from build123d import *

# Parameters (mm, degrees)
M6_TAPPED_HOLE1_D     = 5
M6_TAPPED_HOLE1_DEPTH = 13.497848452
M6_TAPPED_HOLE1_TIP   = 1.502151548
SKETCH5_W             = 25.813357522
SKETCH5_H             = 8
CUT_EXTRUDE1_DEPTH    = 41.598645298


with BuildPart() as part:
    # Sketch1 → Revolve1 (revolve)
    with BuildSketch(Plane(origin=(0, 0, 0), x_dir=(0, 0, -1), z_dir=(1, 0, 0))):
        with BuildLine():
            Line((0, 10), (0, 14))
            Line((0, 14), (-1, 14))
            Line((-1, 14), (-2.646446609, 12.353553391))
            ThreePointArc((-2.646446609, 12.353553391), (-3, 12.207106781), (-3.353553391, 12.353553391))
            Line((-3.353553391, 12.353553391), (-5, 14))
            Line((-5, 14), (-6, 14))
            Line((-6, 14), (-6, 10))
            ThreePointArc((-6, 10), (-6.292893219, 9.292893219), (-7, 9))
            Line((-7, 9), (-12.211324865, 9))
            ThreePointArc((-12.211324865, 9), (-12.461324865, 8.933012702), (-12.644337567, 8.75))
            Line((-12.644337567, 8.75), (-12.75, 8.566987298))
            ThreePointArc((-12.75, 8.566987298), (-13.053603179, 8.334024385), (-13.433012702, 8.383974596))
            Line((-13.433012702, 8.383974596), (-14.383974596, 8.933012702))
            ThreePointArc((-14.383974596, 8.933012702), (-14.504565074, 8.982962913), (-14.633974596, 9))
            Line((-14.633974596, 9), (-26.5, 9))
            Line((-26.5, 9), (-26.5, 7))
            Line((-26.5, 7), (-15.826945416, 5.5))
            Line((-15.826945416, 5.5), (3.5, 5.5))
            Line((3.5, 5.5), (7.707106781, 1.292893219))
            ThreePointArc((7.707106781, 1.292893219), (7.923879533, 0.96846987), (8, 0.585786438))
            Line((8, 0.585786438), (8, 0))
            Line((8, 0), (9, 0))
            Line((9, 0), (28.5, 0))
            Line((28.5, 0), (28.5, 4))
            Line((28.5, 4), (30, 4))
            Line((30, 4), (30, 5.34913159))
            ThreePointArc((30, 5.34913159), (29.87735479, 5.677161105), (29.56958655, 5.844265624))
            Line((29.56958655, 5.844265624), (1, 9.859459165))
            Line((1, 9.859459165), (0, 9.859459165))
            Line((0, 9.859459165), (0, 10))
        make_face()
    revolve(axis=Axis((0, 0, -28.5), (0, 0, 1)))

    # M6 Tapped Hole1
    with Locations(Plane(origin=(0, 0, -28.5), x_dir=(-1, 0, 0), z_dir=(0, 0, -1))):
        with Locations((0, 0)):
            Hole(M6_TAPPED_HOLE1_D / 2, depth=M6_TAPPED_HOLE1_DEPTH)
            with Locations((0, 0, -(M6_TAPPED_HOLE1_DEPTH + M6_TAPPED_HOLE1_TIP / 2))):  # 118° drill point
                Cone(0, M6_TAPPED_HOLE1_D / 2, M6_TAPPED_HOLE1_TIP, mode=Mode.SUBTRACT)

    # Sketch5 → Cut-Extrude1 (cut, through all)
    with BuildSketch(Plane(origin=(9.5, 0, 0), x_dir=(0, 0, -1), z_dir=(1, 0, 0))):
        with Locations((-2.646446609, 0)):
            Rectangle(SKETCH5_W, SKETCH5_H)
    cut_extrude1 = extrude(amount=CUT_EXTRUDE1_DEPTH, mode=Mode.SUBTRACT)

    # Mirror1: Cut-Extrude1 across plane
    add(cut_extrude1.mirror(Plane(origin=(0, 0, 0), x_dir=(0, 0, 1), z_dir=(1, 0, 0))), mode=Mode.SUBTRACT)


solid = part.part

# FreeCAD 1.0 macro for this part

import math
import FreeCAD as App
import Part
import Sketcher

V = App.Vector
Q = App.Units.Quantity


def add_polygon(sketch, points):
    """Adds a closed chain of lines whose ends are joined by coincident constraints."""
    first, n = sketch.GeometryCount, len(points)
    for a, b in zip(points, points[1:] + points[:1]):
        sketch.addGeometry(Part.LineSegment(App.Vector(*a, 0), App.Vector(*b, 0)), False)
    for i in range(n):
        sketch.addConstraint(Sketcher.Constraint("Coincident", first + i, 2, first + (i + 1) % n, 1))

doc = App.newDocument("Part")
params = doc.addObject("Spreadsheet::Sheet", "Params")
for row, (alias, value) in enumerate([
    ("sketch1_radius", "1 mm"),
    ("sketch1_radius2", "0.5 mm"),
    ("sketch1_width", "4 mm"),
    ("sketch1_width2", "2 mm"),
    ("sketch1_height", "1 mm"),
    ("revolution_angle", "360 deg"),
    ("sketch2_diameter", "5 mm"),
    ("hole_diameter", "5 mm"),
    ("hole_depth", "13.497848 mm"),
    ("sketch3_width", "8 mm"),
], start=1):
    params.set(f"A{row}", alias)
    params.set(f"B{row}", "=" + value)
    params.setAlias(f"B{row}", alias)

body = doc.addObject("PartDesign::Body", "Body")

# Sketch on YZ plane
sketch1 = body.newObject("Sketcher::SketchObject", "Sketch")
sketch1.AttachmentSupport = (doc.getObject("YZ_Plane"), [""])
sketch1.MapMode = "FlatFace"
sketch1.addGeometry(Part.LineSegment(V(14, 0, 0), V(14, 1, 0)), False)
sketch1.addGeometry(Part.LineSegment(V(14, 1, 0), V(12.35, 2.65, 0)), False)
sketch1.addGeometry(Part.ArcOfCircle(Part.Circle(V(12.71, 3, 0), V(0, 0, 1), 0.5), math.radians(135), math.radians(225)), False)
sketch1.addGeometry(Part.LineSegment(V(12.35, 3.35, 0), V(14, 5, 0)), False)
sketch1.addGeometry(Part.LineSegment(V(14, 5, 0), V(14, 6, 0)), False)
sketch1.addGeometry(Part.LineSegment(V(14, 6, 0), V(10, 6, 0)), False)
sketch1.addGeometry(Part.ArcOfCircle(Part.Circle(V(10, 7, 0), V(0, 0, 1), 1), math.radians(-180), math.radians(-90)), False)
sketch1.addGeometry(Part.LineSegment(V(9, 7, 0), V(9, 12.21, 0)), False)
sketch1.addGeometry(Part.ArcOfCircle(Part.Circle(V(8.5, 12.21, 0), V(0, 0, 1), 0.5), math.radians(0), math.radians(60)), False)
sketch1.addGeometry(Part.LineSegment(V(8.75, 12.64, 0), V(8.57, 12.75, 0)), False)
sketch1.addGeometry(Part.ArcOfCircle(Part.Circle(V(8.82, 13.18, 0), V(0, 0, 1), 0.5), math.radians(150), math.radians(240)), False)
sketch1.addGeometry(Part.LineSegment(V(8.38, 13.43, 0), V(8.93, 14.38, 0)), False)
sketch1.addGeometry(Part.ArcOfCircle(Part.Circle(V(8.5, 14.63, 0), V(0, 0, 1), 0.5), math.radians(-30), math.radians(0)), False)
sketch1.addGeometry(Part.LineSegment(V(9, 14.63, 0), V(9, 26.5, 0)), False)
sketch1.addGeometry(Part.LineSegment(V(9, 26.5, 0), V(7, 26.5, 0)), False)
sketch1.addGeometry(Part.LineSegment(V(7, 26.5, 0), V(5.5, 15.83, 0)), False)
sketch1.addGeometry(Part.LineSegment(V(5.5, 15.83, 0), V(5.5, -3.5, 0)), False)
sketch1.addGeometry(Part.LineSegment(V(5.5, -3.5, 0), V(1.29, -7.71, 0)), False)
sketch1.addGeometry(Part.ArcOfCircle(Part.Circle(V(0.59, -7, 0), V(0, 0, 1), 1), math.radians(-90), math.radians(-45)), False)
sketch1.addGeometry(Part.LineSegment(V(0.59, -8, 0), V(0, -8, 0)), False)
sketch1.addGeometry(Part.LineSegment(V(0, -8, 0), V(0, -28.5, 0)), False)
sketch1.addGeometry(Part.LineSegment(V(0, -28.5, 0), V(4, -28.5, 0)), False)
sketch1.addGeometry(Part.LineSegment(V(4, -28.5, 0), V(4, -30, 0)), False)
sketch1.addGeometry(Part.LineSegment(V(4, -30, 0), V(5.35, -30, 0)), False)
sketch1.addGeometry(Part.ArcOfCircle(Part.Circle(V(5.35, -29.5, 0), V(0, 0, 1), 0.5), math.radians(-90), math.radians(-8)), False)
sketch1.addGeometry(Part.LineSegment(V(5.84, -29.57, 0), V(9.86, -1, 0)), False)
sketch1.addGeometry(Part.LineSegment(V(9.86, -1, 0), V(9.86, 0, 0)), False)
sketch1.addGeometry(Part.LineSegment(V(9.86, 0, 0), V(14, 0, 0)), False)
sketch1.addConstraint(Sketcher.Constraint("Coincident", 0, 2, 1, 1))
sketch1.addConstraint(Sketcher.Constraint("Tangent", 1, 2, 2, 2))
sketch1.addConstraint(Sketcher.Constraint("Tangent", 2, 1, 3, 1))
sketch1.addConstraint(Sketcher.Constraint("Coincident", 3, 2, 4, 1))
sketch1.addConstraint(Sketcher.Constraint("Coincident", 4, 2, 5, 1))
sketch1.addConstraint(Sketcher.Constraint("Tangent", 5, 2, 6, 2))
sketch1.addConstraint(Sketcher.Constraint("Tangent", 6, 1, 7, 1))
sketch1.addConstraint(Sketcher.Constraint("Tangent", 7, 2, 8, 1))
sketch1.addConstraint(Sketcher.Constraint("Tangent", 8, 2, 9, 1))
sketch1.addConstraint(Sketcher.Constraint("Tangent", 9, 2, 10, 2))
sketch1.addConstraint(Sketcher.Constraint("Tangent", 10, 1, 11, 1))
sketch1.addConstraint(Sketcher.Constraint("Tangent", 11, 2, 12, 1))
sketch1.addConstraint(Sketcher.Constraint("Tangent", 12, 2, 13, 1))
sketch1.addConstraint(Sketcher.Constraint("Coincident", 13, 2, 14, 1))
sketch1.addConstraint(Sketcher.Constraint("Coincident", 14, 2, 15, 1))
sketch1.addConstraint(Sketcher.Constraint("Coincident", 15, 2, 16, 1))
sketch1.addConstraint(Sketcher.Constraint("Coincident", 16, 2, 17, 1))
sketch1.addConstraint(Sketcher.Constraint("Tangent", 17, 2, 18, 2))
sketch1.addConstraint(Sketcher.Constraint("Tangent", 18, 1, 19, 1))
sketch1.addConstraint(Sketcher.Constraint("Coincident", 19, 2, 20, 1))
sketch1.addConstraint(Sketcher.Constraint("Coincident", 20, 2, 21, 1))
sketch1.addConstraint(Sketcher.Constraint("Coincident", 21, 2, 22, 1))
sketch1.addConstraint(Sketcher.Constraint("Coincident", 22, 2, 23, 1))
sketch1.addConstraint(Sketcher.Constraint("Tangent", 23, 2, 24, 1))
sketch1.addConstraint(Sketcher.Constraint("Tangent", 24, 2, 25, 1))
sketch1.addConstraint(Sketcher.Constraint("Coincident", 25, 2, 26, 1))
sketch1.addConstraint(Sketcher.Constraint("Coincident", 26, 2, 27, 1))
sketch1.addConstraint(Sketcher.Constraint("Coincident", 27, 2, 0, 1))
sketch1.addConstraint(Sketcher.Constraint("Vertical", 0))
sketch1.addConstraint(Sketcher.Constraint("Vertical", 4))
sketch1.addConstraint(Sketcher.Constraint("Horizontal", 5))
sketch1.addConstraint(Sketcher.Constraint("Vertical", 7))
sketch1.addConstraint(Sketcher.Constraint("Vertical", 13))
sketch1.addConstraint(Sketcher.Constraint("Horizontal", 14))
sketch1.addConstraint(Sketcher.Constraint("Vertical", 16))
sketch1.addConstraint(Sketcher.Constraint("Horizontal", 19))
sketch1.addConstraint(Sketcher.Constraint("Vertical", 20))
sketch1.addConstraint(Sketcher.Constraint("Horizontal", 21))
sketch1.addConstraint(Sketcher.Constraint("Vertical", 22))
sketch1.addConstraint(Sketcher.Constraint("Horizontal", 23))
sketch1.addConstraint(Sketcher.Constraint("Vertical", 26))
sketch1.addConstraint(Sketcher.Constraint("Horizontal", 27))
sketch1.addConstraint(Sketcher.Constraint("Equal", 2, 8))
sketch1.addConstraint(Sketcher.Constraint("Equal", 8, 10))
sketch1.addConstraint(Sketcher.Constraint("Equal", 10, 12))
sketch1.addConstraint(Sketcher.Constraint("Equal", 6, 18))
sketch1.addConstraint(Sketcher.Constraint("Equal", 12, 24))
sketch1.addConstraint(Sketcher.Constraint("PointOnObject", 19, 2, -2))
sketch1.addConstraint(Sketcher.Constraint("PointOnObject", 26, 2, -1))
sketch1.addConstraint(Sketcher.Constraint("Perpendicular", 1, 3))
sketch1.addConstraint(Sketcher.Constraint("Perpendicular", 9, 11))
sketch1.addConstraint(Sketcher.Constraint("Parallel", 3, 17))
sketch1.addConstraint(Sketcher.Constraint("Parallel", 15, 25))
sketch1.addConstraint(Sketcher.Constraint("Vertical", 8, 3, 12, 3))
sketch1.addConstraint(Sketcher.Constraint("Vertical", 1, 2, 2, 1))
sketch1.addConstraint(Sketcher.Constraint("Vertical", 0, 2, 3, 2))
sketch1.addConstraint(Sketcher.Constraint("Equal", 5, 21))
sketch1.addConstraint(Sketcher.Constraint("Equal", 0, 4))
sketch1.addConstraint(Sketcher.Constraint("Equal", 4, 26))
sketch1.addConstraint(Sketcher.Constraint("Radius", 6, 1.0))
sketch1.addConstraint(Sketcher.Constraint("Radius", 2, 0.5))
sketch1.addConstraint(Sketcher.Constraint("DistanceX", 5, 2, 5, 1, 4.0))
sketch1.addConstraint(Sketcher.Constraint("DistanceX", 14, 2, 14, 1, 2.0))
sketch1.addConstraint(Sketcher.Constraint("DistanceY", 0, 1, 0, 2, 1.0))
sketch1.addConstraint(Sketcher.Constraint("Angle", 9, Q("150 deg")))
sketch1.addConstraint(Sketcher.Constraint("Angle", 15, Q("-98 deg")))
sketch1.addConstraint(Sketcher.Constraint("DistanceY", 20, 2, 20, 1, 20.5))
sketch1.addConstraint(Sketcher.Constraint("DistanceY", 22, 2, 22, 1, 1.5))
sketch1.addConstraint(Sketcher.Constraint("DistanceY", -1, 1, 2, 3, 3.0))
sketch1.addConstraint(Sketcher.Constraint("DistanceX", -1, 1, 6, 3, 10.0))
sketch1.addConstraint(Sketcher.Constraint("DistanceY", 18, 3, -1, 1, 7.0))
sketch1.addConstraint(Sketcher.Constraint("DistanceX", 15, 2, 12, 3, 3.0))
sketch1.addConstraint(Sketcher.Constraint("DistanceY", -1, 1, 13, 2, 26.5))
sketch1.addConstraint(Sketcher.Constraint("DistanceY", 16, 2, -1, 1, 3.5))
sketch1.addConstraint(Sketcher.Constraint("DistanceY", -1, 1, 9, 2, 12.75))
sketch1.addConstraint(Sketcher.Constraint("DistanceX", 23, 1, 23, 2, 1.349132))
sketch1.addConstraint(Sketcher.Constraint("DistanceX", 18, 3, 10, 3, 8.231201))
sketch1.setExpression("Constraints[59]", "Params.sketch1_radius")
sketch1.setExpression("Constraints[60]", "Params.sketch1_radius2")
sketch1.setExpression("Constraints[61]", "Params.sketch1_width")
sketch1.setExpression("Constraints[62]", "Params.sketch1_width2")
sketch1.setExpression("Constraints[63]", "Params.sketch1_height")
revolution = body.newObject("PartDesign::Revolution", "Revolution")
revolution.Profile = sketch1
revolution.ReferenceAxis = (sketch1, ["V_Axis"])
revolution.setExpression("Angle", "Params.revolution_angle")

# Sketch on XY plane
sketch2 = body.newObject("Sketcher::SketchObject", "Sketch001")
sketch2.AttachmentSupport = (doc.getObject("XY_Plane"), [""])
sketch2.MapMode = "FlatFace"
sketch2.AttachmentOffset = App.Placement(V(0, 0, -28.5), App.Rotation())
sketch2.addGeometry(Part.Circle(V(0, 0, 0), V(0, 0, 1), 2.5), False)
sketch2.addConstraint(Sketcher.Constraint("Coincident", 0, 3, -1, 1))
sketch2.addConstraint(Sketcher.Constraint("Diameter", 0, 5.0))
sketch2.setExpression("Constraints[1]", "Params.sketch2_diameter")
doc.recompute()
hole = body.newObject("PartDesign::Hole", "Hole")
hole.Profile = sketch2
hole.ThreadType = "None"
hole.setExpression("Diameter", "Params.hole_diameter")
hole.DepthType = "Dimension"
hole.setExpression("Depth", "Params.hole_depth")
hole.DrillPoint = "Angled"
hole.DrillPointAngle = 118
hole.Reversed = True

# Sketch on YZ plane
sketch3 = body.newObject("Sketcher::SketchObject", "Sketch002")
sketch3.AttachmentSupport = (doc.getObject("YZ_Plane"), [""])
sketch3.MapMode = "FlatFace"
sketch3.AttachmentOffset = App.Placement(V(0, 0, 9.5), App.Rotation())
add_polygon(sketch3, [(4, 16), (-4, 16), (-4, -10), (4, -10)])  # lines 0-3
sketch3.addConstraint(Sketcher.Constraint("Horizontal", 0))
sketch3.addConstraint(Sketcher.Constraint("Vertical", 1))
sketch3.addConstraint(Sketcher.Constraint("Horizontal", 2))
sketch3.addConstraint(Sketcher.Constraint("Vertical", 3))
sketch3.addConstraint(Sketcher.Constraint("DistanceX", 0, 2, 0, 1, 8.0))
sketch3.addConstraint(Sketcher.Constraint("DistanceX", 0, 2, -1, 1, 4.0))
sketch3.addConstraint(Sketcher.Constraint("DistanceY", 1, 2, 1, 1, 25.813358))
sketch3.addConstraint(Sketcher.Constraint("DistanceY", -1, 1, 0, 2, 15.553125))
sketch3.setExpression("Constraints[8]", "Params.sketch3_width")
pocket1 = body.newObject("PartDesign::Pocket", "Pocket")
pocket1.Profile = sketch3
pocket1.Type = "ThroughAll"
pocket1.Reversed = True
doc.recompute()

mirrored = body.newObject("PartDesign::Mirrored", "Mirrored")
mirrored.Originals = [pocket1]
mirrored.MirrorPlane = (doc.getObject("YZ_Plane"), [""])
body.Tip = mirrored

doc.recompute()
